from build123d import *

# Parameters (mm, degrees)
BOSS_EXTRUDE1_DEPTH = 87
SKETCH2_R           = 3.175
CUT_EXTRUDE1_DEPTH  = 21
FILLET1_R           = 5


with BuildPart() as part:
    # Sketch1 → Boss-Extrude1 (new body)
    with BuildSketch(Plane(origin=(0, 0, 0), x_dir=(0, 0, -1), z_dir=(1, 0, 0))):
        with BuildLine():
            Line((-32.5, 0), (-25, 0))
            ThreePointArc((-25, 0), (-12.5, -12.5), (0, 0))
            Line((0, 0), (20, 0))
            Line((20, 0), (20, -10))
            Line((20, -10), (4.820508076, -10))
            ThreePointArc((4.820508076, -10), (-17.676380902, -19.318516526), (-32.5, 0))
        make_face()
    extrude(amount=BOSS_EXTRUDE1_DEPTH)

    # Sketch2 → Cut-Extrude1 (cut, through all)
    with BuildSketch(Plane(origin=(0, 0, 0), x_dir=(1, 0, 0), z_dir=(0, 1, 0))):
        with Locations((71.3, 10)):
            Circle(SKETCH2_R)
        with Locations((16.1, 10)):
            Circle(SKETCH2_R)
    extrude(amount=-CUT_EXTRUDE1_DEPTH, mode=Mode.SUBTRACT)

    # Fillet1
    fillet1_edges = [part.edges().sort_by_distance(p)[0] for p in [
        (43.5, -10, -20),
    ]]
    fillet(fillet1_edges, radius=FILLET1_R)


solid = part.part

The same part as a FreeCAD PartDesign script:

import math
import FreeCAD as App
import Part
import Sketcher

V = App.Vector


def edges_at(feature, points):
    """Names of the edges that pass closest to the given points."""
    edges = feature.Shape.Edges
    near = lambda p: min(range(len(edges)), key=lambda i: edges[i].distToShape(Part.Vertex(*p))[0])
    return sorted({f"Edge{near(p) + 1}" for p in points})

doc = App.newDocument("Part")
body = doc.addObject("PartDesign::Body", "Body")

# Sketch on YZ plane
sketch1 = body.newObject("Sketcher::SketchObject", "Sketch")
sketch1.AttachmentSupport = (doc.getObject("YZ_Plane"), [""])
sketch1.MapMode = "FlatFace"
sketch1.addGeometry([
    Part.LineSegment(V(0, 25, 0), V(0, 32, 0)),  # 0
    Part.ArcOfCircle(Part.Circle(V(0, 12, 0), V(0, 0, 1), 20), math.radians(90), math.radians(240)),  # 1
    Part.LineSegment(V(-10, -5, 0), V(-10, -20, 0)),  # 2
    Part.LineSegment(V(-10, -20, 0), V(0, -20, 0)),  # 3
    Part.LineSegment(V(0, -20, 0), V(0, 0, 0)),  # 4
    Part.ArcOfCircle(Part.Circle(V(0, 12, 0), V(0, 0, 1), 12), math.radians(90), math.radians(270)),  # 5
], False)
sketch1.addConstraint([
    Sketcher.Constraint("Coincident", 0, 2, 1, 1),
    Sketcher.Constraint("Coincident", 1, 2, 2, 1),
    Sketcher.Constraint("Coincident", 2, 2, 3, 1),
    Sketcher.Constraint("Coincident", 3, 2, 4, 1),
    Sketcher.Constraint("Coincident", 4, 2, 5, 2),
    Sketcher.Constraint("Coincident", 5, 1, 0, 1),
    Sketcher.Constraint("Vertical", 0),
    Sketcher.Constraint("Vertical", 2),
    Sketcher.Constraint("Horizontal", 3),
    Sketcher.Constraint("Vertical", 4),
    Sketcher.Constraint("Coincident", 4, 2, -1, 1),
    Sketcher.Constraint("Coincident", 5, 3, 1, 3),
    Sketcher.Constraint("PointOnObject", 1, 3, -2),
    Sketcher.Constraint("PointOnObject", 0, 2, -2),
    Sketcher.Constraint("Radius", 1, 20.0),
    Sketcher.Constraint("Radius", 5, 12.5),
    Sketcher.Constraint("DistanceX", 3, 1, 3, 2, 10.0),
    Sketcher.Constraint("DistanceY", 4, 1, 4, 2, 20.0),
])
pad1 = body.newObject("PartDesign::Pad", "Pad")
pad1.Profile = sketch1
pad1.Length = 87

# Sketch on XZ plane
sketch2 = body.newObject("Sketcher::SketchObject", "Sketch001")
sketch2.AttachmentSupport = (doc.getObject("XZ_Plane"), [""])
sketch2.MapMode = "FlatFace"
sketch2.addGeometry([
    Part.Circle(V(71.3, -10, 0), V(0, 0, 1), 3.2),
    Part.Circle(V(16.1, -10, 0), V(0, 0, 1), 3.2),
], False)
sketch2.addConstraint([
    Sketcher.Constraint("Equal", 0, 1),
    Sketcher.Constraint("Horizontal", 0, 3, 1, 3),
    Sketcher.Constraint("Diameter", 0, 6.35),
    Sketcher.Constraint("DistanceY", 0, 3, -1, 1, 10.0),
    Sketcher.Constraint("DistanceX", -1, 1, 0, 3, 71.3),
    Sketcher.Constraint("DistanceX", -1, 1, 1, 3, 16.1),
])
pocket1 = body.newObject("PartDesign::Pocket", "Pocket")
pocket1.Profile = sketch2
pocket1.Type = "ThroughAll"
pocket1.Reversed = True
doc.recompute()

fillet = body.newObject("PartDesign::Fillet", "Fillet")
fillet.Base = (pocket1, edges_at(pocket1, [(43.5, -10, -20)]))
fillet.Radius = 5

doc.recompute()
